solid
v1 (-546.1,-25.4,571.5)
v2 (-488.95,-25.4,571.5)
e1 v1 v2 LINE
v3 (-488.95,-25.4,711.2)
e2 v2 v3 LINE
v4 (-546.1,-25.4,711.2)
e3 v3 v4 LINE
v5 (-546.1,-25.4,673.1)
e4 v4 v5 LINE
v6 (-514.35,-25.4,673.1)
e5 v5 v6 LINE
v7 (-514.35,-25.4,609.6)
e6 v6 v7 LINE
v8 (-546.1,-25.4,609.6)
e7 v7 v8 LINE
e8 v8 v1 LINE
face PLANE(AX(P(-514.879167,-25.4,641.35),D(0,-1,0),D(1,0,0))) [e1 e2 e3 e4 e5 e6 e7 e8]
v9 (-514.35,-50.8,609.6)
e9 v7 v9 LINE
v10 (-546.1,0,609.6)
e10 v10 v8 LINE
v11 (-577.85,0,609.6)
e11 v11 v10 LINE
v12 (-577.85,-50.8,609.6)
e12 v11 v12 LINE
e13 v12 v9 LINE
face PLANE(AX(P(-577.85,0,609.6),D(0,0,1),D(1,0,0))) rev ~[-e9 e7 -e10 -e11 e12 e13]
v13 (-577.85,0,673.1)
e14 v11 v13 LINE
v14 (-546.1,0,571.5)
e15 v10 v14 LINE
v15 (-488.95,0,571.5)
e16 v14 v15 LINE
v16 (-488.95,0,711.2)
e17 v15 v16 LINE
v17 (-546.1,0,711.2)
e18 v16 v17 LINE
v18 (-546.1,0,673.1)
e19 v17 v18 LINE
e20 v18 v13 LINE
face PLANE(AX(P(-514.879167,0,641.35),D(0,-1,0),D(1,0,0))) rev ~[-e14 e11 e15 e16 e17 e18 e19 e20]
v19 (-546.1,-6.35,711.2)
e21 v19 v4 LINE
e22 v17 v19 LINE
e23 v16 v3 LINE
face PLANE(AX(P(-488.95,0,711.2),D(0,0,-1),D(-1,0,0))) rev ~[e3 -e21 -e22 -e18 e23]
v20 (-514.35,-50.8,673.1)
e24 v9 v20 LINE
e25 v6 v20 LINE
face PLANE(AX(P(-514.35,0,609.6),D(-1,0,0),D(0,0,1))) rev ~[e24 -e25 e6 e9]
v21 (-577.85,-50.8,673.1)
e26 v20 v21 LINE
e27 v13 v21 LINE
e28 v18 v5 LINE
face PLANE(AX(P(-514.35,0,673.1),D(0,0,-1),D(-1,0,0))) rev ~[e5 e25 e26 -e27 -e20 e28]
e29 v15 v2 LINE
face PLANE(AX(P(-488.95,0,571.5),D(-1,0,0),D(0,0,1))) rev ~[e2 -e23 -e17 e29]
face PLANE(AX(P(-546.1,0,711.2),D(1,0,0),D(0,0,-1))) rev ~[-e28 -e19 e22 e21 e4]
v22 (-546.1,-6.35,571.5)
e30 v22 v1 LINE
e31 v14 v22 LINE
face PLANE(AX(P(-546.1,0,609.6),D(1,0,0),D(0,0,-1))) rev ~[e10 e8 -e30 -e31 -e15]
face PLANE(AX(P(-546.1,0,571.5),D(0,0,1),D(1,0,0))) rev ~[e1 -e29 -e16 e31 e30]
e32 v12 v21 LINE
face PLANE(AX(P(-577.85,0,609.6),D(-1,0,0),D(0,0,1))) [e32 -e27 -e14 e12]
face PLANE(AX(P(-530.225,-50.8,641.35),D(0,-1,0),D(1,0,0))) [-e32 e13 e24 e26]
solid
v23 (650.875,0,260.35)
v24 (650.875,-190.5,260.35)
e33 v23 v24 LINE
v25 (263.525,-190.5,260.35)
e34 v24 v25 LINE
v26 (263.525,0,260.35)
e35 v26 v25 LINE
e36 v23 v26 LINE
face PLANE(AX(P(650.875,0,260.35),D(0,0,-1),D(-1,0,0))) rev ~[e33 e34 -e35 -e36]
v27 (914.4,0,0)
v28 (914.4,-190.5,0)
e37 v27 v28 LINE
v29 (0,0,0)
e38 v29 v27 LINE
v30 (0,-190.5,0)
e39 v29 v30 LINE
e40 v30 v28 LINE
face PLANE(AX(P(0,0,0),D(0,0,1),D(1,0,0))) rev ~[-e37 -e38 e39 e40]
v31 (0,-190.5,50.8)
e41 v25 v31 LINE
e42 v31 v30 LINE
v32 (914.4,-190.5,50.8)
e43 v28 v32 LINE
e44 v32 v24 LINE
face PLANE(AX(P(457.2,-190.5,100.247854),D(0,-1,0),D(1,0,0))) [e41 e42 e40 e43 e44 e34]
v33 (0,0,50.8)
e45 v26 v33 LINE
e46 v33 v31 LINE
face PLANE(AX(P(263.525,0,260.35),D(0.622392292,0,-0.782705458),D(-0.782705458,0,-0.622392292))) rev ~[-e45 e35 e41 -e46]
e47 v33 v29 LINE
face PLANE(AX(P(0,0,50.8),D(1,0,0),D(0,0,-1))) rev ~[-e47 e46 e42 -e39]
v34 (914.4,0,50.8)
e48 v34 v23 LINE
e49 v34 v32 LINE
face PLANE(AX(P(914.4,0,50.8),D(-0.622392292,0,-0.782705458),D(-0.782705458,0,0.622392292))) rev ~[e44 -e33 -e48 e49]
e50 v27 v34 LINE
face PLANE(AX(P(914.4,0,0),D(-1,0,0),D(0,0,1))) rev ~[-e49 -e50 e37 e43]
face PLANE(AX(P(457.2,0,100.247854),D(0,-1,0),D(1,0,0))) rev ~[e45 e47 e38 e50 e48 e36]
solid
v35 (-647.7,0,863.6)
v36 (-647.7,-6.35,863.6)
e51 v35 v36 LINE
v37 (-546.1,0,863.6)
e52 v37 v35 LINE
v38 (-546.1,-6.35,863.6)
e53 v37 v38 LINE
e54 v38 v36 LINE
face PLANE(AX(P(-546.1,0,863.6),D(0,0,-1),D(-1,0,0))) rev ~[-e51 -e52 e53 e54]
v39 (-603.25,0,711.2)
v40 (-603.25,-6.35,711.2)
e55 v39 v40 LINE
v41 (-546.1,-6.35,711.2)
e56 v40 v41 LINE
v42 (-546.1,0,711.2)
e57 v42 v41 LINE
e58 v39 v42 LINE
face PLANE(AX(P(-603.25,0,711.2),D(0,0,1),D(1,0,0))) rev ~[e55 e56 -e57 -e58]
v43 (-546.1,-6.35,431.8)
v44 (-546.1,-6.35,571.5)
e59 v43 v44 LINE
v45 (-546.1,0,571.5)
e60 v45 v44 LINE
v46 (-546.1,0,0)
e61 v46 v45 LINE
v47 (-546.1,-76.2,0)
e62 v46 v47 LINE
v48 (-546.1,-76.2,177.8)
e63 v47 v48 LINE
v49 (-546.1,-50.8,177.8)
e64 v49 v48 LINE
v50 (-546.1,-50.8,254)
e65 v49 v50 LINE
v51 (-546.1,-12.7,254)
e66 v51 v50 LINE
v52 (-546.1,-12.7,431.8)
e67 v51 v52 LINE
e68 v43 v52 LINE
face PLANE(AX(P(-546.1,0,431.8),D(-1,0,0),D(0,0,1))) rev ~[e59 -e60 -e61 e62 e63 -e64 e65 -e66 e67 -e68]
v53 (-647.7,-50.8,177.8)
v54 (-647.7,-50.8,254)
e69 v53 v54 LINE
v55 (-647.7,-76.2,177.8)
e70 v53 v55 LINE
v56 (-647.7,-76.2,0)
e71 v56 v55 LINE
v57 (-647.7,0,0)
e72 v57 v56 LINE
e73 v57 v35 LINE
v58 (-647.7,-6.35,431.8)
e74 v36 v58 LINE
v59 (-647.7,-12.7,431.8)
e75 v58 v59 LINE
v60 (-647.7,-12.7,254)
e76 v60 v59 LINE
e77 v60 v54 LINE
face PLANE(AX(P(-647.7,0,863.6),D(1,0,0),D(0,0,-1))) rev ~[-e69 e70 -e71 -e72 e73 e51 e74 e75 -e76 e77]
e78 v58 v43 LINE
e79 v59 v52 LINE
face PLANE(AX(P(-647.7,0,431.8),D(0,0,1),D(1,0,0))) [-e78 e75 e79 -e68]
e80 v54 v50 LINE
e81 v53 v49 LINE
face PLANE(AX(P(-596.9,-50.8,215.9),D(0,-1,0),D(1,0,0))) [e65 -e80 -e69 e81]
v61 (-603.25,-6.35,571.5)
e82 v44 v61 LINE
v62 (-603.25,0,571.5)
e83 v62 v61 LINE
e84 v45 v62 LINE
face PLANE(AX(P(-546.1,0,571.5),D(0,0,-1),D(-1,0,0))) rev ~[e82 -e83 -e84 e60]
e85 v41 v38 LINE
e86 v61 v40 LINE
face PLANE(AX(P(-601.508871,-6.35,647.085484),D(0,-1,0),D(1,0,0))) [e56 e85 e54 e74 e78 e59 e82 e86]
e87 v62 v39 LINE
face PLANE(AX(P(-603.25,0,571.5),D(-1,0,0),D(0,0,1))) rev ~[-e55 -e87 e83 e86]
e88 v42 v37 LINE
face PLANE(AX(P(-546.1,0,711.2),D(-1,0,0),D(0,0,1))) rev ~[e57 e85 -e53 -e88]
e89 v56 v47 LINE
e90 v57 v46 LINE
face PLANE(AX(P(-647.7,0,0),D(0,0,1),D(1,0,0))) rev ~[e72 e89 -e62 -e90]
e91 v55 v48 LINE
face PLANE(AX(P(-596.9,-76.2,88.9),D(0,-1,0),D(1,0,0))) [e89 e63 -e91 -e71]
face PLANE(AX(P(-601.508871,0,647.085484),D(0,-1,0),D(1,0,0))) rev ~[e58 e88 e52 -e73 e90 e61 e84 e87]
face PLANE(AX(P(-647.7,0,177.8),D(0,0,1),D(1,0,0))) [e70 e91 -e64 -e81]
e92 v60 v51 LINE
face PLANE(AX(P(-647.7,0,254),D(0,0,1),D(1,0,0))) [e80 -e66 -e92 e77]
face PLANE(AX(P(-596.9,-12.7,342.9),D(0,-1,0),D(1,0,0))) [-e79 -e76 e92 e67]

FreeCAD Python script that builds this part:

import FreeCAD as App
import Part
import Sketcher
from FreeCAD import Vector
Q = App.Units.Quantity

doc = App.newDocument("Part")
body = doc.addObject("PartDesign::Body", "Body")

# Sketch on XZ plane
sketch1 = doc.addObject("Sketcher::SketchObject", "Sketch")
body.addObject(sketch1)
sketch1.AttachmentSupport = (doc.XZ_Plane, [""])
sketch1.MapMode = "FlatFace"
sketch1.addGeometry(Part.LineSegment(Vector(0, 50.8, 0), Vector(0, 0, 0)), False)
sketch1.addGeometry(Part.LineSegment(Vector(0, 0, 0), Vector(914.4, 0, 0)), False)
sketch1.addGeometry(Part.LineSegment(Vector(914.4, 0, 0), Vector(914.4, 50.8, 0)), False)
sketch1.addGeometry(Part.LineSegment(Vector(914.4, 50.8, 0), Vector(650.875, 260.35, 0)), False)
sketch1.addGeometry(Part.LineSegment(Vector(650.875, 260.35, 0), Vector(263.525, 260.35, 0)), False)
sketch1.addGeometry(Part.LineSegment(Vector(263.525, 260.35, 0), Vector(0, 50.8, 0)), False)
sketch1.addConstraint(Sketcher.Constraint("Coincident", 0, 2, 1, 1))
sketch1.addConstraint(Sketcher.Constraint("Coincident", 1, 2, 2, 1))
sketch1.addConstraint(Sketcher.Constraint("Coincident", 2, 2, 3, 1))
sketch1.addConstraint(Sketcher.Constraint("Coincident", 3, 2, 4, 1))
sketch1.addConstraint(Sketcher.Constraint("Coincident", 4, 2, 5, 1))
sketch1.addConstraint(Sketcher.Constraint("Coincident", 5, 2, 0, 1))
sketch1.addConstraint(Sketcher.Constraint("Vertical", 0))
sketch1.addConstraint(Sketcher.Constraint("Horizontal", 1))
sketch1.addConstraint(Sketcher.Constraint("Vertical", 2))
sketch1.addConstraint(Sketcher.Constraint("Horizontal", 4))
sketch1.addConstraint(Sketcher.Constraint("Coincident", 0, 2, -1, 1))
sketch1.addConstraint(Sketcher.Constraint("Horizontal", 2, 2, 5, 2))
sketch1.addConstraint(Sketcher.Constraint("Equal", 3, 5))
sketch1.addConstraint(Sketcher.Constraint("DistanceX", 1, 1, 1, 2, Q("36 in")))
sketch1.addConstraint(Sketcher.Constraint("DistanceY", 0, 2, 0, 1, Q("2 in")))
sketch1.addConstraint(Sketcher.Constraint("DistanceX", 4, 2, 4, 1, Q("15.25 in")))
sketch1.addConstraint(Sketcher.Constraint("DistanceY", -1, 1, 3, 2, Q("10.25 in")))
pad1 = doc.addObject("PartDesign::Pad", "Pad")
body.addObject(pad1)
pad1.Profile = sketch1
pad1.Length = Q("7.5 in")
body2 = doc.addObject("PartDesign::Body", "Body001")

# Sketch on XZ plane
sketch2 = doc.addObject("Sketcher::SketchObject", "Sketch001")
body2.addObject(sketch2)
sketch2.AttachmentSupport = (doc.getObject("XZ_Plane001"), [""])
sketch2.MapMode = "FlatFace"
sketch2.addGeometry(Part.LineSegment(Vector(-647.7, 177.8, 0), Vector(-647.7, 0, 0)), False)
sketch2.addGeometry(Part.LineSegment(Vector(-647.7, 0, 0), Vector(-546.1, 0, 0)), False)
sketch2.addGeometry(Part.LineSegment(Vector(-546.1, 0, 0), Vector(-546.1, 177.8, 0)), False)
sketch2.addGeometry(Part.LineSegment(Vector(-546.1, 177.8, 0), Vector(-647.7, 177.8, 0)), False)
sketch2.addConstraint(Sketcher.Constraint("Coincident", 0, 2, 1, 1))
sketch2.addConstraint(Sketcher.Constraint("Coincident", 1, 2, 2, 1))
sketch2.addConstraint(Sketcher.Constraint("Coincident", 2, 2, 3, 1))
sketch2.addConstraint(Sketcher.Constraint("Coincident", 3, 2, 0, 1))
sketch2.addConstraint(Sketcher.Constraint("Vertical", 0))
sketch2.addConstraint(Sketcher.Constraint("Horizontal", 1))
sketch2.addConstraint(Sketcher.Constraint("Vertical", 2))
sketch2.addConstraint(Sketcher.Constraint("Horizontal", 3))
sketch2.addConstraint(Sketcher.Constraint("PointOnObject", 0, 2, -1))
sketch2.addConstraint(Sketcher.Constraint("DistanceX", 1, 1, 1, 2, Q("4 in")))
sketch2.addConstraint(Sketcher.Constraint("DistanceY", 0, 2, 0, 1, Q("7 in")))
sketch2.addConstraint(Sketcher.Constraint("DistanceX", 0, 2, -1, 1, Q("25.5 in")))
pad2 = doc.addObject("PartDesign::Pad", "Pad001")
body2.addObject(pad2)
pad2.Profile = sketch2
pad2.Length = Q("3 in")

# Sketch on XZ plane
sketch3 = doc.addObject("Sketcher::SketchObject", "Sketch002")
body2.addObject(sketch3)
sketch3.AttachmentSupport = (doc.getObject("XZ_Plane001"), [""])
sketch3.MapMode = "FlatFace"
sketch3.addGeometry(Part.LineSegment(Vector(-647.7, 254, 0), Vector(-647.7, 177.8, 0)), False)
sketch3.addGeometry(Part.LineSegment(Vector(-647.7, 177.8, 0), Vector(-546.1, 177.8, 0)), False)
sketch3.addGeometry(Part.LineSegment(Vector(-546.1, 177.8, 0), Vector(-546.1, 254, 0)), False)
sketch3.addGeometry(Part.LineSegment(Vector(-546.1, 254, 0), Vector(-647.7, 254, 0)), False)
sketch3.addConstraint(Sketcher.Constraint("Coincident", 0, 2, 1, 1))
sketch3.addConstraint(Sketcher.Constraint("Coincident", 1, 2, 2, 1))
sketch3.addConstraint(Sketcher.Constraint("Coincident", 2, 2, 3, 1))
sketch3.addConstraint(Sketcher.Constraint("Coincident", 3, 2, 0, 1))
sketch3.addConstraint(Sketcher.Constraint("Vertical", 0))
sketch3.addConstraint(Sketcher.Constraint("Horizontal", 1))
sketch3.addConstraint(Sketcher.Constraint("Vertical", 2))
sketch3.addConstraint(Sketcher.Constraint("Horizontal", 3))
sketch3.addConstraint(Sketcher.Constraint("DistanceX", 1, 1, 1, 2, Q("4 in")))
sketch3.addConstraint(Sketcher.Constraint("DistanceY", 0, 2, 0, 1, Q("3 in")))
sketch3.addConstraint(Sketcher.Constraint("DistanceY", -1, 1, 0, 2, Q("7 in")))
sketch3.addConstraint(Sketcher.Constraint("DistanceX", 0, 2, -1, 1, Q("25.5 in")))
pad3 = doc.addObject("PartDesign::Pad", "Pad002")
body2.addObject(pad3)
pad3.Profile = sketch3
pad3.Length = Q("2 in")

# Sketch on XZ plane
sketch4 = doc.addObject("Sketcher::SketchObject", "Sketch003")
body2.addObject(sketch4)
sketch4.AttachmentSupport = (doc.getObject("XZ_Plane001"), [""])
sketch4.MapMode = "FlatFace"
sketch4.addGeometry(Part.LineSegment(Vector(-647.7, 431.8, 0), Vector(-647.7, 254, 0)), False)
sketch4.addGeometry(Part.LineSegment(Vector(-647.7, 254, 0), Vector(-546.1, 254, 0)), False)
sketch4.addGeometry(Part.LineSegment(Vector(-546.1, 254, 0), Vector(-546.1, 431.8, 0)), False)
sketch4.addGeometry(Part.LineSegment(Vector(-546.1, 431.8, 0), Vector(-647.7, 431.8, 0)), False)
sketch4.addConstraint(Sketcher.Constraint("Coincident", 0, 2, 1, 1))
sketch4.addConstraint(Sketcher.Constraint("Coincident", 1, 2, 2, 1))
sketch4.addConstraint(Sketcher.Constraint("Coincident", 2, 2, 3, 1))
sketch4.addConstraint(Sketcher.Constraint("Coincident", 3, 2, 0, 1))
sketch4.addConstraint(Sketcher.Constraint("Vertical", 0))
sketch4.addConstraint(Sketcher.Constraint("Horizontal", 1))
sketch4.addConstraint(Sketcher.Constraint("Vertical", 2))
sketch4.addConstraint(Sketcher.Constraint("Horizontal", 3))
sketch4.addConstraint(Sketcher.Constraint("DistanceX", 1, 1, 1, 2, Q("4 in")))
sketch4.addConstraint(Sketcher.Constraint("DistanceY", 0, 2, 0, 1, Q("7 in")))
sketch4.addConstraint(Sketcher.Constraint("DistanceY", -1, 1, 0, 2, Q("10 in")))
sketch4.addConstraint(Sketcher.Constraint("DistanceX", 0, 2, -1, 1, Q("25.5 in")))
pad4 = doc.addObject("PartDesign::Pad", "Pad003")
body2.addObject(pad4)
pad4.Profile = sketch4
pad4.Length = Q("0.5 in")

# Sketch on XZ plane
sketch5 = doc.addObject("Sketcher::SketchObject", "Sketch004")
body2.addObject(sketch5)
sketch5.AttachmentSupport = (doc.getObject("XZ_Plane001"), [""])
sketch5.MapMode = "FlatFace"
sketch5.addGeometry(Part.LineSegment(Vector(-647.7, 431.8, 0), Vector(-546.1, 431.8, 0)), False)
sketch5.addGeometry(Part.LineSegment(Vector(-546.1, 431.8, 0), Vector(-546.1, 571.5, 0)), False)
sketch5.addGeometry(Part.LineSegment(Vector(-546.1, 571.5, 0), Vector(-603.25, 571.5, 0)), False)
sketch5.addGeometry(Part.LineSegment(Vector(-603.25, 571.5, 0), Vector(-603.25, 711.2, 0)), False)
sketch5.addGeometry(Part.LineSegment(Vector(-603.25, 711.2, 0), Vector(-546.1, 711.2, 0)), False)
sketch5.addGeometry(Part.LineSegment(Vector(-546.1, 711.2, 0), Vector(-546.1, 863.6, 0)), False)
sketch5.addGeometry(Part.LineSegment(Vector(-546.1, 863.6, 0), Vector(-647.7, 863.6, 0)), False)
sketch5.addGeometry(Part.LineSegment(Vector(-647.7, 863.6, 0), Vector(-647.7, 431.8, 0)), False)
sketch5.addConstraint(Sketcher.Constraint("Coincident", 0, 2, 1, 1))
sketch5.addConstraint(Sketcher.Constraint("Coincident", 1, 2, 2, 1))
sketch5.addConstraint(Sketcher.Constraint("Coincident", 2, 2, 3, 1))
sketch5.addConstraint(Sketcher.Constraint("Coincident", 3, 2, 4, 1))
sketch5.addConstraint(Sketcher.Constraint("Coincident", 4, 2, 5, 1))
sketch5.addConstraint(Sketcher.Constraint("Coincident", 5, 2, 6, 1))
sketch5.addConstraint(Sketcher.Constraint("Coincident", 6, 2, 7, 1))
sketch5.addConstraint(Sketcher.Constraint("Coincident", 7, 2, 0, 1))
sketch5.addConstraint(Sketcher.Constraint("Horizontal", 0))
sketch5.addConstraint(Sketcher.Constraint("Vertical", 1))
sketch5.addConstraint(Sketcher.Constraint("Horizontal", 2))
sketch5.addConstraint(Sketcher.Constraint("Vertical", 3))
sketch5.addConstraint(Sketcher.Constraint("Horizontal", 4))
sketch5.addConstraint(Sketcher.Constraint("Vertical", 5))
sketch5.addConstraint(Sketcher.Constraint("Horizontal", 6))
sketch5.addConstraint(Sketcher.Constraint("Vertical", 7))
sketch5.addConstraint(Sketcher.Constraint("Vertical", 1, 2, 4, 2))
sketch5.addConstraint(Sketcher.Constraint("Equal", 1, 3))
sketch5.addConstraint(Sketcher.Constraint("DistanceX", 0, 1, 0, 2, Q("4 in")))
sketch5.addConstraint(Sketcher.Constraint("DistanceY", 5, 1, 5, 2, Q("6 in")))
sketch5.addConstraint(Sketcher.Constraint("DistanceY", 7, 2, 7, 1, Q("17 in")))
sketch5.addConstraint(Sketcher.Constraint("DistanceY", -1, 1, 0, 2, Q("17 in")))
sketch5.addConstraint(Sketcher.Constraint("DistanceX", 2, 2, 2, 1, Q("2.25 in")))
sketch5.addConstraint(Sketcher.Constraint("DistanceX", 0, 2, -1, 1, Q("21.5 in")))
pad5 = doc.addObject("PartDesign::Pad", "Pad004")
body2.addObject(pad5)
pad5.Profile = sketch5
pad5.Length = Q("0.25 in")
body3 = doc.addObject("PartDesign::Body", "Body002")

# Sketch on XZ plane
sketch6 = doc.addObject("Sketcher::SketchObject", "Sketch005")
body3.addObject(sketch6)
sketch6.AttachmentSupport = (doc.getObject("XZ_Plane002"), [""])
sketch6.MapMode = "FlatFace"
sketch6.addGeometry(Part.LineSegment(Vector(-514.35, 609.6, 0), Vector(-514.35, 673.1, 0)), False)
sketch6.addGeometry(Part.LineSegment(Vector(-514.35, 673.1, 0), Vector(-577.85, 673.1, 0)), False)
sketch6.addGeometry(Part.LineSegment(Vector(-577.85, 673.1, 0), Vector(-577.85, 609.6, 0)), False)
sketch6.addGeometry(Part.LineSegment(Vector(-577.85, 609.6, 0), Vector(-514.35, 609.6, 0)), False)
sketch6.addConstraint(Sketcher.Constraint("Coincident", 0, 2, 1, 1))
sketch6.addConstraint(Sketcher.Constraint("Coincident", 1, 2, 2, 1))
sketch6.addConstraint(Sketcher.Constraint("Coincident", 2, 2, 3, 1))
sketch6.addConstraint(Sketcher.Constraint("Coincident", 3, 2, 0, 1))
sketch6.addConstraint(Sketcher.Constraint("Vertical", 0))
sketch6.addConstraint(Sketcher.Constraint("Horizontal", 1))
sketch6.addConstraint(Sketcher.Constraint("Vertical", 2))
sketch6.addConstraint(Sketcher.Constraint("Horizontal", 3))
sketch6.addConstraint(Sketcher.Constraint("Equal", 3, 0))
sketch6.addConstraint(Sketcher.Constraint("DistanceX", 1, 2, 1, 1, Q("2.5 in")))
sketch6.addConstraint(Sketcher.Constraint("DistanceY", -1, 1, 2, 2, Q("24 in")))
sketch6.addConstraint(Sketcher.Constraint("DistanceX", 0, 2, -1, 1, Q("20.25 in")))
pad6 = doc.addObject("PartDesign::Pad", "Pad005")
body3.addObject(pad6)
pad6.Profile = sketch6
pad6.Length = Q("2 in")
body2.AllowCompound = True
doc.recompute()

boolean = doc.addObject("PartDesign::Boolean", "Boolean")
body2.addObject(boolean)
boolean.Type = "Fuse"
boolean.addObjects([body3])

# Sketch on XZ plane
sketch7 = doc.addObject("Sketcher::SketchObject", "Sketch006")
body2.addObject(sketch7)
sketch7.AttachmentSupport = (doc.getObject("XZ_Plane001"), [""])
sketch7.MapMode = "FlatFace"
sketch7.addGeometry(Part.LineSegment(Vector(-546.1, 609.6, 0), Vector(-546.1, 571.5, 0)), False)
sketch7.addGeometry(Part.LineSegment(Vector(-546.1, 571.5, 0), Vector(-488.95, 571.5, 0)), False)
sketch7.addGeometry(Part.LineSegment(Vector(-488.95, 571.5, 0), Vector(-488.95, 711.2, 0)), False)
sketch7.addGeometry(Part.LineSegment(Vector(-488.95, 711.2, 0), Vector(-546.1, 711.2, 0)), False)
sketch7.addGeometry(Part.LineSegment(Vector(-546.1, 711.2, 0), Vector(-546.1, 673.1, 0)), False)
sketch7.addGeometry(Part.LineSegment(Vector(-546.1, 673.1, 0), Vector(-514.35, 673.1, 0)), False)
sketch7.addGeometry(Part.LineSegment(Vector(-514.35, 673.1, 0), Vector(-514.35, 609.6, 0)), False)
sketch7.addGeometry(Part.LineSegment(Vector(-514.35, 609.6, 0), Vector(-546.1, 609.6, 0)), False)
sketch7.addConstraint(Sketcher.Constraint("Coincident", 0, 2, 1, 1))
sketch7.addConstraint(Sketcher.Constraint("Coincident", 1, 2, 2, 1))
sketch7.addConstraint(Sketcher.Constraint("Coincident", 2, 2, 3, 1))
sketch7.addConstraint(Sketcher.Constraint("Coincident", 3, 2, 4, 1))
sketch7.addConstraint(Sketcher.Constraint("Coincident", 4, 2, 5, 1))
sketch7.addConstraint(Sketcher.Constraint("Coincident", 5, 2, 6, 1))
sketch7.addConstraint(Sketcher.Constraint("Coincident", 6, 2, 7, 1))
sketch7.addConstraint(Sketcher.Constraint("Coincident", 7, 2, 0, 1))
sketch7.addConstraint(Sketcher.Constraint("Vertical", 0))
sketch7.addConstraint(Sketcher.Constraint("Horizontal", 1))
sketch7.addConstraint(Sketcher.Constraint("Vertical", 2))
sketch7.addConstraint(Sketcher.Constraint("Horizontal", 3))
sketch7.addConstraint(Sketcher.Constraint("Vertical", 4))
sketch7.addConstraint(Sketcher.Constraint("Horizontal", 5))
sketch7.addConstraint(Sketcher.Constraint("Vertical", 6))
sketch7.addConstraint(Sketcher.Constraint("Horizontal", 7))
sketch7.addConstraint(Sketcher.Constraint("Vertical", 0, 2, 3, 2))
sketch7.addConstraint(Sketcher.Constraint("Equal", 0, 4))
sketch7.addConstraint(Sketcher.Constraint("DistanceY", 0, 2, 0, 1, Q("1.5 in")))
sketch7.addConstraint(Sketcher.Constraint("DistanceY", 2, 1, 2, 2, Q("5.5 in")))
sketch7.addConstraint(Sketcher.Constraint("DistanceY", -1, 1, 2, 2, Q("28 in")))
sketch7.addConstraint(Sketcher.Constraint("DistanceX", 5, 2, 2, 2, Q("1 in")))
sketch7.addConstraint(Sketcher.Constraint("DistanceX", 1, 1, 1, 2, Q("2.25 in")))
sketch7.addConstraint(Sketcher.Constraint("DistanceX", 0, 2, -1, 1, Q("21.5 in")))
pad7 = doc.addObject("PartDesign::Pad", "Pad006")
body2.addObject(pad7)
pad7.Profile = sketch7
pad7.Length = Q("1 in")

doc.recompute()
